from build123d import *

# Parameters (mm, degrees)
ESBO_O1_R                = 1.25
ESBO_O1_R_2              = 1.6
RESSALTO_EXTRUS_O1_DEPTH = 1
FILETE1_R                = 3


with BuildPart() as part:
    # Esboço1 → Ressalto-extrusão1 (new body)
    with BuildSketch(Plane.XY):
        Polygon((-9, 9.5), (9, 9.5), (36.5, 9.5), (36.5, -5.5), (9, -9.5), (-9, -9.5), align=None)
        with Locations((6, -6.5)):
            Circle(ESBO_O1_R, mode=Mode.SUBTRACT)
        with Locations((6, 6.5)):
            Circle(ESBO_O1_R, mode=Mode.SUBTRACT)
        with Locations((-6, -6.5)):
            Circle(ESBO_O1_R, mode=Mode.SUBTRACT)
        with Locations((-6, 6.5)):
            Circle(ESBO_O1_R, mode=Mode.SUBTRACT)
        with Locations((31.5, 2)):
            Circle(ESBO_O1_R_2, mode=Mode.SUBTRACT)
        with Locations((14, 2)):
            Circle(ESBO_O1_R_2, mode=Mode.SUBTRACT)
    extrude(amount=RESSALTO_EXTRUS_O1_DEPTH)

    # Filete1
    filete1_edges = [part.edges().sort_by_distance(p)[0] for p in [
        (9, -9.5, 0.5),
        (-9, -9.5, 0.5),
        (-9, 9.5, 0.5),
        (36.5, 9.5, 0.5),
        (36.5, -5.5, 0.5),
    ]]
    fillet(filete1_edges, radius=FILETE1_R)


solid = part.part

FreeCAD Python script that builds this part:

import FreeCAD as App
import Part
import Sketcher
from FreeCAD import Vector


def edges_at(feature, points):
    """Names of the edges that pass closest to the given points."""
    edges = feature.Shape.Edges
    near = lambda p: min(range(len(edges)), key=lambda i: edges[i].distToShape(Part.Vertex(*p))[0])
    return sorted({f"Edge{near(p) + 1}" for p in points})


def add_polygon(sketch, points):
    """Adds a closed chain of lines whose ends are joined by coincident constraints."""
    first, n = sketch.GeometryCount, len(points)
    for a, b in zip(points, points[1:] + points[:1]):
        sketch.addGeometry(Part.LineSegment(App.Vector(*a, 0), App.Vector(*b, 0)), False)
    for i in range(n):
        sketch.addConstraint(Sketcher.Constraint("Coincident", first + i, 2, first + (i + 1) % n, 1))

doc = App.newDocument("Part")
body = doc.addObject("PartDesign::Body", "Body")

# Sketch on XY plane
sketch1 = body.newObject("Sketcher::SketchObject", "Sketch")
sketch1.AttachmentSupport = (doc.getObject("XY_Plane"), [""])
sketch1.MapMode = "FlatFace"
add_polygon(sketch1, [(36.5, 9.5), (-9, 9.5), (-9, -9.5), (9, -9.5), (36.5, -5.5)])  # lines 0-4
sketch1.addGeometry(Part.Circle(Vector(6, -6.5, 0), Vector(0, 0, 1), 1.2), False)  # 5
sketch1.addGeometry(Part.Circle(Vector(-6, -6.5, 0), Vector(0, 0, 1), 1.2), False)  # 6
sketch1.addGeometry(Part.Circle(Vector(31.5, 2, 0), Vector(0, 0, 1), 1.6), False)  # 7
sketch1.addGeometry(Part.Circle(Vector(14, 2, 0), Vector(0, 0, 1), 1.6), False)  # 8
sketch1.addGeometry(Part.Circle(Vector(6, 6.5, 0), Vector(0, 0, 1), 1.2), False)  # 9
sketch1.addGeometry(Part.Circle(Vector(-6, 6.5, 0), Vector(0, 0, 1), 1.2), False)  # 10
sketch1.addConstraint(Sketcher.Constraint("Horizontal", 0))
sketch1.addConstraint(Sketcher.Constraint("Vertical", 1))
sketch1.addConstraint(Sketcher.Constraint("Horizontal", 2))
sketch1.addConstraint(Sketcher.Constraint("Vertical", 4))
sketch1.addConstraint(Sketcher.Constraint("Equal", 5, 6))
sketch1.addConstraint(Sketcher.Constraint("Equal", 7, 8))
sketch1.addConstraint(Sketcher.Constraint("Equal", 6, 9))
sketch1.addConstraint(Sketcher.Constraint("Equal", 9, 10))
sketch1.addConstraint(Sketcher.Constraint("Symmetric", 6, 3, 9, 3, -1, 1))
sketch1.addConstraint(Sketcher.Constraint("Symmetric", 5, 3, 10, 3, -1, 1))
sketch1.addConstraint(Sketcher.Constraint("Symmetric", 0, 2, 2, 2, -1, 1))
sketch1.addConstraint(Sketcher.Constraint("Symmetric", 5, 3, 6, 3, -2))
sketch1.addConstraint(Sketcher.Constraint("Horizontal", 7, 3, 8, 3))
sketch1.addConstraint(Sketcher.Constraint("Diameter", 5, 2.5))
sketch1.addConstraint(Sketcher.Constraint("Diameter", 7, 3.2))
sketch1.addConstraint(Sketcher.Constraint("DistanceX", 2, 1, 2, 2, 18.0))
sketch1.addConstraint(Sketcher.Constraint("DistanceY", 1, 2, 1, 1, 19.0))
sketch1.addConstraint(Sketcher.Constraint("DistanceY", 4, 1, 4, 2, 15.0))
sketch1.addConstraint(Sketcher.Constraint("DistanceX", 0, 2, 0, 1, 45.5))
sketch1.addConstraint(Sketcher.Constraint("DistanceX", -1, 1, 5, 3, 6.0))
sketch1.addConstraint(Sketcher.Constraint("DistanceY", -1, 1, 7, 3, 2.0))
sketch1.addConstraint(Sketcher.Constraint("DistanceX", -1, 1, 8, 3, 14.0))
sketch1.addConstraint(Sketcher.Constraint("DistanceY", 5, 3, 9, 3, 13.0))
sketch1.addConstraint(Sketcher.Constraint("DistanceX", 7, 3, 3, 2, 5.0))
pad1 = body.newObject("PartDesign::Pad", "Pad")
pad1.Profile = sketch1
pad1.Length = 1
doc.recompute()

fillet = body.newObject("PartDesign::Fillet", "Fillet")
fillet.Base = (pad1, edges_at(pad1, [
    (9, -9.5, 0.5),
    (-9, -9.5, 0.5),
    (-9, 9.5, 0.5),
    (36.5, 9.5, 0.5),
    (36.5, -5.5, 0.5),
]))
fillet.Radius = 3

doc.recompute()
